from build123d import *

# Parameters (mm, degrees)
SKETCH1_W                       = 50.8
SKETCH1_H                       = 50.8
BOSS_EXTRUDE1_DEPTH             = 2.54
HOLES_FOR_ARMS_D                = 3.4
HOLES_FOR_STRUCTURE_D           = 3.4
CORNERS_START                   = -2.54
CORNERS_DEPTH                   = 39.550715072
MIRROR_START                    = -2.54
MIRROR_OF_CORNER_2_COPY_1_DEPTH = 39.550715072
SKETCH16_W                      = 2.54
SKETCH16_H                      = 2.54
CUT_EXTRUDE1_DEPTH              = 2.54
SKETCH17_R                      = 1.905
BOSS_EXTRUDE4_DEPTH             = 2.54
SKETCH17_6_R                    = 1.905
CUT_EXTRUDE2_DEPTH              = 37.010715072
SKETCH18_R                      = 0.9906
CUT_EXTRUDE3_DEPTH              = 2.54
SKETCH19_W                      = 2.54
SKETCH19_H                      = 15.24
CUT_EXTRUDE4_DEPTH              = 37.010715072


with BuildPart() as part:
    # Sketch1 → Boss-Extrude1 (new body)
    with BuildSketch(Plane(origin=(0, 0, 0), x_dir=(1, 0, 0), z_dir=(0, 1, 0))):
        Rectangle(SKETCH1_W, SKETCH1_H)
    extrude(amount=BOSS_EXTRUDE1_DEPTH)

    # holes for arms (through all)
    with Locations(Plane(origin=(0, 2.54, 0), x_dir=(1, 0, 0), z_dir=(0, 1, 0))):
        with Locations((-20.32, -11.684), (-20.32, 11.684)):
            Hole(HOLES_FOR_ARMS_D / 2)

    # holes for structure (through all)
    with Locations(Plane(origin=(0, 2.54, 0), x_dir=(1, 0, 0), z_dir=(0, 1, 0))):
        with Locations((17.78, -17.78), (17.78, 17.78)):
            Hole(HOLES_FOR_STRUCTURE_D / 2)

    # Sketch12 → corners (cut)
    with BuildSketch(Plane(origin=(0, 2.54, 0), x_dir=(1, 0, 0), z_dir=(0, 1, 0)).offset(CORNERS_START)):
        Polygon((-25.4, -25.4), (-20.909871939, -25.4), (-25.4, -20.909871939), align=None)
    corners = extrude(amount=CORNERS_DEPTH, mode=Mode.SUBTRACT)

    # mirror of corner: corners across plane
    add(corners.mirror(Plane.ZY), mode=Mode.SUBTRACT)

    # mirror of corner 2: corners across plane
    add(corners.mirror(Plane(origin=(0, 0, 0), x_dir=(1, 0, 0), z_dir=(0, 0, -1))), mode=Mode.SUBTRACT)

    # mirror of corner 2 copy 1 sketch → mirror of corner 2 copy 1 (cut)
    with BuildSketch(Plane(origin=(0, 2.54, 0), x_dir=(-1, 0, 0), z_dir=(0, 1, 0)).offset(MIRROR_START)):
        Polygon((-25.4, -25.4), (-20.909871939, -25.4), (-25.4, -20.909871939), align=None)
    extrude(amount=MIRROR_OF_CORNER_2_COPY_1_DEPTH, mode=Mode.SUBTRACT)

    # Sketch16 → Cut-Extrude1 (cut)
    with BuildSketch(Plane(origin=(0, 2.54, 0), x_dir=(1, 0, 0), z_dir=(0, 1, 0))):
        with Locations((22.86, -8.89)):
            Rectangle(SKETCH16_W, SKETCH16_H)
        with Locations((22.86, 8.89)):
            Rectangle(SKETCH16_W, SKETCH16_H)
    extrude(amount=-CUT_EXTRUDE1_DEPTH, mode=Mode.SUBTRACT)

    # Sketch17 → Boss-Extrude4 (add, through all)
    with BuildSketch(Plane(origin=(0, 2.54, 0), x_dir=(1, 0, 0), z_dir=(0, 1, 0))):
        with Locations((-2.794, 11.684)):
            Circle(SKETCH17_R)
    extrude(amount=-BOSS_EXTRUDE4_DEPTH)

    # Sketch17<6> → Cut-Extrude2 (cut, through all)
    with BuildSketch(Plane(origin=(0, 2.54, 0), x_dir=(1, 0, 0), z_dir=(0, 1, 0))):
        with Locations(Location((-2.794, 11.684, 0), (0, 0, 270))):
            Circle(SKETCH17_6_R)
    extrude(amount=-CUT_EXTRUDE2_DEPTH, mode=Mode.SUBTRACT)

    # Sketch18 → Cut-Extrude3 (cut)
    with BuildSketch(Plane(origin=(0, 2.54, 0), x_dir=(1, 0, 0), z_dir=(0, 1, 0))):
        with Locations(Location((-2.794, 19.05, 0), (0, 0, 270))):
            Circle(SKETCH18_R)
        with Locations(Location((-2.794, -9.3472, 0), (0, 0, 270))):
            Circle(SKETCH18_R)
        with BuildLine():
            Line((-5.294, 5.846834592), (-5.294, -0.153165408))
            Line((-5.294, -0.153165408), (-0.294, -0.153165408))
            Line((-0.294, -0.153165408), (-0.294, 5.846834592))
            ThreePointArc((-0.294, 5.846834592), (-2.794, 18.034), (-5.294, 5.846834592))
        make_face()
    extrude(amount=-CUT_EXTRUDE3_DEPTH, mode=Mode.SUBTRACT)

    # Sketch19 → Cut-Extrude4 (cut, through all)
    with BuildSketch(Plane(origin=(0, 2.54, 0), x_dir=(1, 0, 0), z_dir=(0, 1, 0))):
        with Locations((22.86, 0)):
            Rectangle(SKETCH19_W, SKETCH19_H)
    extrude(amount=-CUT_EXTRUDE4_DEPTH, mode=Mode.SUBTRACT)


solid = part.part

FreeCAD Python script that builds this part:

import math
import FreeCAD as App
import Part
import Sketcher

V = App.Vector
Q = App.Units.Quantity


def add_polygon(sketch, points):
    """Adds a closed chain of lines whose ends are joined by coincident constraints."""
    first, n = sketch.GeometryCount, len(points)
    for a, b in zip(points, points[1:] + points[:1]):
        sketch.addGeometry(Part.LineSegment(App.Vector(*a, 0), App.Vector(*b, 0)), False)
    for i in range(n):
        sketch.addConstraint(Sketcher.Constraint("Coincident", first + i, 2, first + (i + 1) % n, 1))

doc = App.newDocument("Part")
body = doc.addObject("PartDesign::Body", "Body")

# Sketch on XZ plane
sketch1 = body.newObject("Sketcher::SketchObject", "Sketch")
sketch1.AttachmentSupport = (doc.getObject("XZ_Plane"), [""])
sketch1.MapMode = "FlatFace"
add_polygon(sketch1, [(-25, -25), (-25, 25), (25, 25), (25, -25)])  # lines 0-3
sketch1.addConstraint(Sketcher.Constraint("Vertical", 0))
sketch1.addConstraint(Sketcher.Constraint("Horizontal", 1))
sketch1.addConstraint(Sketcher.Constraint("Vertical", 2))
sketch1.addConstraint(Sketcher.Constraint("Horizontal", 3))
sketch1.addConstraint(Sketcher.Constraint("Symmetric", 0, 2, 2, 2, -1, 1))
sketch1.addConstraint(Sketcher.Constraint("Equal", 3, 0))
sketch1.addConstraint(Sketcher.Constraint("DistanceX", 1, 1, 1, 2, Q("2 in")))
pad1 = body.newObject("PartDesign::Pad", "Pad")
pad1.Profile = sketch1
pad1.Length = Q("0.1 in")
pad1.Reversed = True

# Sketch on XZ plane
sketch2 = body.newObject("Sketcher::SketchObject", "Sketch001")
sketch2.AttachmentSupport = (doc.getObject("XZ_Plane"), [""])
sketch2.MapMode = "FlatFace"
sketch2.AttachmentOffset = App.Placement(V(0, 0, -0.1 * 25.4), App.Rotation())
sketch2.addGeometry(Part.Circle(V(-20.3, 11.7, 0), V(0, 0, 1), 1.7), False)
sketch2.addGeometry(Part.Circle(V(-20.3, -11.7, 0), V(0, 0, 1), 1.7), False)
sketch2.addConstraint(Sketcher.Constraint("Equal", 0, 1))
sketch2.addConstraint(Sketcher.Constraint("Symmetric", 0, 3, 1, 3, -1))
sketch2.addConstraint(Sketcher.Constraint("DistanceX", 0, 3, -1, 1, Q("0.8 in")))
sketch2.addConstraint(Sketcher.Constraint("Diameter", 0, Q("3.4 mm")))
sketch2.addConstraint(Sketcher.Constraint("DistanceY", -1, 1, 0, 3, Q("0.46 in")))
doc.recompute()
hole = body.newObject("PartDesign::Hole", "Hole")
hole.Profile = sketch2
hole.ThreadType = "None"
hole.Diameter = 3.4
hole.DepthType = "ThroughAll"
hole.Reversed = True

# Sketch on XZ plane
sketch3 = body.newObject("Sketcher::SketchObject", "Sketch002")
sketch3.AttachmentSupport = (doc.getObject("XZ_Plane"), [""])
sketch3.MapMode = "FlatFace"
sketch3.AttachmentOffset = App.Placement(V(0, 0, -0.1 * 25.4), App.Rotation())
sketch3.addGeometry(Part.Circle(V(17.8, 17.8, 0), V(0, 0, 1), 1.7), False)
sketch3.addGeometry(Part.Circle(V(17.8, -17.8, 0), V(0, 0, 1), 1.7), False)
sketch3.addConstraint(Sketcher.Constraint("Equal", 0, 1))
sketch3.addConstraint(Sketcher.Constraint("Symmetric", 0, 3, 1, 3, -1))
sketch3.addConstraint(Sketcher.Constraint("DistanceX", -1, 1, 0, 3, Q("0.7 in")))
sketch3.addConstraint(Sketcher.Constraint("DistanceY", -1, 1, 0, 3, Q("0.7 in")))
sketch3.addConstraint(Sketcher.Constraint("Diameter", 0, Q("3.4 mm")))
doc.recompute()
hole2 = body.newObject("PartDesign::Hole", "Hole001")
hole2.Profile = sketch3
hole2.ThreadType = "None"
hole2.Diameter = 3.4
hole2.DepthType = "ThroughAll"
hole2.Reversed = True

# Sketch on XZ plane
sketch4 = body.newObject("Sketcher::SketchObject", "Sketch003")
sketch4.AttachmentSupport = (doc.getObject("XZ_Plane"), [""])
sketch4.MapMode = "FlatFace"
add_polygon(sketch4, [(-25.4, 25.4), (-20.9, 25.4), (-25.4, 20.9)])  # lines 0-2
sketch4.addConstraint(Sketcher.Constraint("Horizontal", 0))
sketch4.addConstraint(Sketcher.Constraint("Vertical", 2))
sketch4.addConstraint(Sketcher.Constraint("Equal", 0, 2))
sketch4.addConstraint(Sketcher.Constraint("DistanceY", -1, 1, 0, 2, Q("1 in")))
sketch4.addConstraint(Sketcher.Constraint("DistanceX", 1, 2, -1, 1, Q("1 in")))
sketch4.addConstraint(Sketcher.Constraint("Distance", 1, Q("0.25 in")))
pocket1 = body.newObject("PartDesign::Pocket", "Pocket")
pocket1.Profile = sketch4
pocket1.Length = 39.550715
doc.recompute()

mirrored = body.newObject("PartDesign::Mirrored", "Mirrored")
mirrored.Originals = [pocket1]
mirrored.MirrorPlane = (doc.getObject("YZ_Plane"), [""])
body.Tip = mirrored
doc.recompute()

mirrored2 = body.newObject("PartDesign::Mirrored", "Mirrored001")
mirrored2.Originals = [pocket1]
mirrored2.MirrorPlane = (doc.getObject("XY_Plane"), [""])
body.Tip = mirrored2

# Sketch on XZ plane
sketch5 = body.newObject("Sketcher::SketchObject", "Sketch004")
sketch5.AttachmentSupport = (doc.getObject("XZ_Plane"), [""])
sketch5.MapMode = "FlatFace"
add_polygon(sketch5, [(25.4, -25.4), (20.9, -25.4), (25.4, -20.9)])  # lines 0-2
sketch5.addConstraint(Sketcher.Constraint("Horizontal", 0))
sketch5.addConstraint(Sketcher.Constraint("Vertical", 2))
sketch5.addConstraint(Sketcher.Constraint("Equal", 0, 2))
sketch5.addConstraint(Sketcher.Constraint("DistanceY", 0, 2, -1, 1, Q("1 in")))
sketch5.addConstraint(Sketcher.Constraint("DistanceX", -1, 1, 1, 2, Q("1 in")))
sketch5.addConstraint(Sketcher.Constraint("Distance", 1, Q("0.25 in")))
pocket2 = body.newObject("PartDesign::Pocket", "Pocket001")
pocket2.Profile = sketch5
pocket2.Length = 39.550715

# Sketch on XZ plane
sketch6 = body.newObject("Sketcher::SketchObject", "Sketch005")
sketch6.AttachmentSupport = (doc.getObject("XZ_Plane"), [""])
sketch6.MapMode = "FlatFace"
sketch6.AttachmentOffset = App.Placement(V(0, 0, -0.1 * 25.4), App.Rotation())
add_polygon(sketch6, [(21.6, 7.6), (21.6, 10.2), (24.1, 10.2), (24.1, 7.6)])  # lines 0-3
add_polygon(sketch6, [(21.6, -10.2), (21.6, -7.6), (24.1, -7.6), (24.1, -10.2)])  # lines 4-7
sketch6.addConstraint(Sketcher.Constraint("Vertical", 0))
sketch6.addConstraint(Sketcher.Constraint("Horizontal", 1))
sketch6.addConstraint(Sketcher.Constraint("Vertical", 2))
sketch6.addConstraint(Sketcher.Constraint("Horizontal", 3))
sketch6.addConstraint(Sketcher.Constraint("Vertical", 4))
sketch6.addConstraint(Sketcher.Constraint("Horizontal", 5))
sketch6.addConstraint(Sketcher.Constraint("Vertical", 6))
sketch6.addConstraint(Sketcher.Constraint("Horizontal", 7))
sketch6.addConstraint(Sketcher.Constraint("Symmetric", 3, 2, 4, 2, -1))
sketch6.addConstraint(Sketcher.Constraint("Symmetric", 1, 2, 6, 2, -1))
sketch6.addConstraint(Sketcher.Constraint("Equal", 7, 0))
sketch6.addConstraint(Sketcher.Constraint("DistanceX", 1, 1, 1, 2, Q("0.1 in")))
sketch6.addConstraint(Sketcher.Constraint("DistanceY", -1, 1, 0, 2, Q("0.4 in")))
sketch6.addConstraint(Sketcher.Constraint("DistanceX", -1, 1, 0, 2, Q("0.85 in")))
pocket3 = body.newObject("PartDesign::Pocket", "Pocket002")
pocket3.Profile = sketch6
pocket3.Length = Q("0.1 in")
pocket3.Reversed = True

# Sketch on XZ plane
sketch7 = body.newObject("Sketcher::SketchObject", "Sketch006")
sketch7.AttachmentSupport = (doc.getObject("XZ_Plane"), [""])
sketch7.MapMode = "FlatFace"
sketch7.AttachmentOffset = App.Placement(V(0, 0, -0.1 * 25.4), App.Rotation())
sketch7.addGeometry(Part.Circle(V(-2.8, -11.7, 0), V(0, 0, 1), 1.9), False)
sketch7.addConstraint(Sketcher.Constraint("Diameter", 0, Q("0.15 in")))
sketch7.addConstraint(Sketcher.Constraint("DistanceX", 0, 3, -1, 1, Q("0.11 in")))
sketch7.addConstraint(Sketcher.Constraint("DistanceY", 0, 3, -1, 1, Q("0.46 in")))
pad2 = body.newObject("PartDesign::Pad", "Pad001")
pad2.Profile = sketch7
pad2.Type = "UpToLast"

# Sketch on XZ plane
sketch8 = body.newObject("Sketcher::SketchObject", "Sketch007")
sketch8.AttachmentSupport = (doc.getObject("XZ_Plane"), [""])
sketch8.MapMode = "FlatFace"
sketch8.AttachmentOffset = App.Placement(V(0, 0, -0.1 * 25.4), App.Rotation())
sketch8.addGeometry(Part.Circle(V(-2.8, -11.7, 0), V(0, 0, 1), 1.9), False)
sketch8.addConstraint(Sketcher.Constraint("Diameter", 0, Q("0.15 in")))
sketch8.addConstraint(Sketcher.Constraint("DistanceX", 0, 3, -1, 1, Q("0.11 in")))
sketch8.addConstraint(Sketcher.Constraint("DistanceY", 0, 3, -1, 1, Q("0.46 in")))
pocket4 = body.newObject("PartDesign::Pocket", "Pocket003")
pocket4.Profile = sketch8
pocket4.Type = "ThroughAll"
pocket4.Reversed = True

# Sketch on XZ plane
sketch9 = body.newObject("Sketcher::SketchObject", "Sketch008")
sketch9.AttachmentSupport = (doc.getObject("XZ_Plane"), [""])
sketch9.MapMode = "FlatFace"
sketch9.AttachmentOffset = App.Placement(V(0, 0, -0.1 * 25.4), App.Rotation())
sketch9.addGeometry(Part.Circle(V(-2.8, -19.1, 0), V(0, 0, 1), 1), False)
sketch9.addGeometry(Part.Circle(V(-2.8, 9.3, 0), V(0, 0, 1), 1), False)
sketch9.addGeometry(Part.LineSegment(V(-5.3, -5.8, 0), V(-5.3, 0.2, 0)), False)
sketch9.addGeometry(Part.LineSegment(V(-5.3, 0.2, 0), V(-0.3, 0.2, 0)), False)
sketch9.addGeometry(Part.LineSegment(V(-0.3, 0.2, 0), V(-0.3, -5.8, 0)), False)
sketch9.addGeometry(Part.ArcOfCircle(Part.Circle(V(-2.8, -11.7, 0), V(0, 0, 1), 6.3), math.radians(113), math.radians(427)), False)
sketch9.addConstraint(Sketcher.Constraint("Coincident", 2, 2, 3, 1))
sketch9.addConstraint(Sketcher.Constraint("Coincident", 3, 2, 4, 1))
sketch9.addConstraint(Sketcher.Constraint("Coincident", 4, 2, 5, 2))
sketch9.addConstraint(Sketcher.Constraint("Coincident", 5, 1, 2, 1))
sketch9.addConstraint(Sketcher.Constraint("Vertical", 2))
sketch9.addConstraint(Sketcher.Constraint("Horizontal", 3))
sketch9.addConstraint(Sketcher.Constraint("Vertical", 4))
sketch9.addConstraint(Sketcher.Constraint("Equal", 0, 1))
sketch9.addConstraint(Sketcher.Constraint("Horizontal", 4, 2, 5, 1))
sketch9.addConstraint(Sketcher.Constraint("Vertical", 0, 3, 1, 3))
sketch9.addConstraint(Sketcher.Constraint("Vertical", 1, 3, 5, 3))
sketch9.addConstraint(Sketcher.Constraint("Radius", 5, Q("0.25 in")))
sketch9.addConstraint(Sketcher.Constraint("Diameter", 0, Q("0.078 in")))
sketch9.addConstraint(Sketcher.Constraint("DistanceX", 0, 3, -1, 1, Q("0.11 in")))
sketch9.addConstraint(Sketcher.Constraint("DistanceY", 0, 3, -1, 1, Q("0.75 in")))
sketch9.addConstraint(Sketcher.Constraint("DistanceY", 5, 3, -1, 1, Q("0.46 in")))
sketch9.addConstraint(Sketcher.Constraint("DistanceY", -1, 1, 1, 3, Q("0.368 in")))
sketch9.addConstraint(Sketcher.Constraint("DistanceX", 3, 1, 3, 2, Q("5 mm")))
sketch9.addConstraint(Sketcher.Constraint("DistanceY", 2, 1, 2, 2, Q("6 mm")))
pocket5 = body.newObject("PartDesign::Pocket", "Pocket004")
pocket5.Profile = sketch9
pocket5.Length = Q("0.1 in")
pocket5.Reversed = True

# Sketch on XZ plane
sketch10 = body.newObject("Sketcher::SketchObject", "Sketch009")
sketch10.AttachmentSupport = (doc.getObject("XZ_Plane"), [""])
sketch10.MapMode = "FlatFace"
sketch10.AttachmentOffset = App.Placement(V(0, 0, -0.1 * 25.4), App.Rotation())
add_polygon(sketch10, [(21.6, -7.6), (21.6, 7.6), (24.1, 7.6), (24.1, -7.6)])  # lines 0-3
sketch10.addConstraint(Sketcher.Constraint("Vertical", 0))
sketch10.addConstraint(Sketcher.Constraint("Horizontal", 1))
sketch10.addConstraint(Sketcher.Constraint("Vertical", 2))
sketch10.addConstraint(Sketcher.Constraint("Horizontal", 3))
sketch10.addConstraint(Sketcher.Constraint("DistanceX", 1, 1, 1, 2, Q("0.1 in")))
sketch10.addConstraint(Sketcher.Constraint("DistanceY", 0, 1, 0, 2, Q("0.6 in")))
sketch10.addConstraint(Sketcher.Constraint("DistanceY", -1, 1, 0, 2, Q("0.3 in")))
sketch10.addConstraint(Sketcher.Constraint("DistanceX", -1, 1, 0, 2, Q("0.85 in")))
pocket6 = body.newObject("PartDesign::Pocket", "Pocket005")
pocket6.Profile = sketch10
pocket6.Type = "ThroughAll"
pocket6.Reversed = True

doc.recompute()
